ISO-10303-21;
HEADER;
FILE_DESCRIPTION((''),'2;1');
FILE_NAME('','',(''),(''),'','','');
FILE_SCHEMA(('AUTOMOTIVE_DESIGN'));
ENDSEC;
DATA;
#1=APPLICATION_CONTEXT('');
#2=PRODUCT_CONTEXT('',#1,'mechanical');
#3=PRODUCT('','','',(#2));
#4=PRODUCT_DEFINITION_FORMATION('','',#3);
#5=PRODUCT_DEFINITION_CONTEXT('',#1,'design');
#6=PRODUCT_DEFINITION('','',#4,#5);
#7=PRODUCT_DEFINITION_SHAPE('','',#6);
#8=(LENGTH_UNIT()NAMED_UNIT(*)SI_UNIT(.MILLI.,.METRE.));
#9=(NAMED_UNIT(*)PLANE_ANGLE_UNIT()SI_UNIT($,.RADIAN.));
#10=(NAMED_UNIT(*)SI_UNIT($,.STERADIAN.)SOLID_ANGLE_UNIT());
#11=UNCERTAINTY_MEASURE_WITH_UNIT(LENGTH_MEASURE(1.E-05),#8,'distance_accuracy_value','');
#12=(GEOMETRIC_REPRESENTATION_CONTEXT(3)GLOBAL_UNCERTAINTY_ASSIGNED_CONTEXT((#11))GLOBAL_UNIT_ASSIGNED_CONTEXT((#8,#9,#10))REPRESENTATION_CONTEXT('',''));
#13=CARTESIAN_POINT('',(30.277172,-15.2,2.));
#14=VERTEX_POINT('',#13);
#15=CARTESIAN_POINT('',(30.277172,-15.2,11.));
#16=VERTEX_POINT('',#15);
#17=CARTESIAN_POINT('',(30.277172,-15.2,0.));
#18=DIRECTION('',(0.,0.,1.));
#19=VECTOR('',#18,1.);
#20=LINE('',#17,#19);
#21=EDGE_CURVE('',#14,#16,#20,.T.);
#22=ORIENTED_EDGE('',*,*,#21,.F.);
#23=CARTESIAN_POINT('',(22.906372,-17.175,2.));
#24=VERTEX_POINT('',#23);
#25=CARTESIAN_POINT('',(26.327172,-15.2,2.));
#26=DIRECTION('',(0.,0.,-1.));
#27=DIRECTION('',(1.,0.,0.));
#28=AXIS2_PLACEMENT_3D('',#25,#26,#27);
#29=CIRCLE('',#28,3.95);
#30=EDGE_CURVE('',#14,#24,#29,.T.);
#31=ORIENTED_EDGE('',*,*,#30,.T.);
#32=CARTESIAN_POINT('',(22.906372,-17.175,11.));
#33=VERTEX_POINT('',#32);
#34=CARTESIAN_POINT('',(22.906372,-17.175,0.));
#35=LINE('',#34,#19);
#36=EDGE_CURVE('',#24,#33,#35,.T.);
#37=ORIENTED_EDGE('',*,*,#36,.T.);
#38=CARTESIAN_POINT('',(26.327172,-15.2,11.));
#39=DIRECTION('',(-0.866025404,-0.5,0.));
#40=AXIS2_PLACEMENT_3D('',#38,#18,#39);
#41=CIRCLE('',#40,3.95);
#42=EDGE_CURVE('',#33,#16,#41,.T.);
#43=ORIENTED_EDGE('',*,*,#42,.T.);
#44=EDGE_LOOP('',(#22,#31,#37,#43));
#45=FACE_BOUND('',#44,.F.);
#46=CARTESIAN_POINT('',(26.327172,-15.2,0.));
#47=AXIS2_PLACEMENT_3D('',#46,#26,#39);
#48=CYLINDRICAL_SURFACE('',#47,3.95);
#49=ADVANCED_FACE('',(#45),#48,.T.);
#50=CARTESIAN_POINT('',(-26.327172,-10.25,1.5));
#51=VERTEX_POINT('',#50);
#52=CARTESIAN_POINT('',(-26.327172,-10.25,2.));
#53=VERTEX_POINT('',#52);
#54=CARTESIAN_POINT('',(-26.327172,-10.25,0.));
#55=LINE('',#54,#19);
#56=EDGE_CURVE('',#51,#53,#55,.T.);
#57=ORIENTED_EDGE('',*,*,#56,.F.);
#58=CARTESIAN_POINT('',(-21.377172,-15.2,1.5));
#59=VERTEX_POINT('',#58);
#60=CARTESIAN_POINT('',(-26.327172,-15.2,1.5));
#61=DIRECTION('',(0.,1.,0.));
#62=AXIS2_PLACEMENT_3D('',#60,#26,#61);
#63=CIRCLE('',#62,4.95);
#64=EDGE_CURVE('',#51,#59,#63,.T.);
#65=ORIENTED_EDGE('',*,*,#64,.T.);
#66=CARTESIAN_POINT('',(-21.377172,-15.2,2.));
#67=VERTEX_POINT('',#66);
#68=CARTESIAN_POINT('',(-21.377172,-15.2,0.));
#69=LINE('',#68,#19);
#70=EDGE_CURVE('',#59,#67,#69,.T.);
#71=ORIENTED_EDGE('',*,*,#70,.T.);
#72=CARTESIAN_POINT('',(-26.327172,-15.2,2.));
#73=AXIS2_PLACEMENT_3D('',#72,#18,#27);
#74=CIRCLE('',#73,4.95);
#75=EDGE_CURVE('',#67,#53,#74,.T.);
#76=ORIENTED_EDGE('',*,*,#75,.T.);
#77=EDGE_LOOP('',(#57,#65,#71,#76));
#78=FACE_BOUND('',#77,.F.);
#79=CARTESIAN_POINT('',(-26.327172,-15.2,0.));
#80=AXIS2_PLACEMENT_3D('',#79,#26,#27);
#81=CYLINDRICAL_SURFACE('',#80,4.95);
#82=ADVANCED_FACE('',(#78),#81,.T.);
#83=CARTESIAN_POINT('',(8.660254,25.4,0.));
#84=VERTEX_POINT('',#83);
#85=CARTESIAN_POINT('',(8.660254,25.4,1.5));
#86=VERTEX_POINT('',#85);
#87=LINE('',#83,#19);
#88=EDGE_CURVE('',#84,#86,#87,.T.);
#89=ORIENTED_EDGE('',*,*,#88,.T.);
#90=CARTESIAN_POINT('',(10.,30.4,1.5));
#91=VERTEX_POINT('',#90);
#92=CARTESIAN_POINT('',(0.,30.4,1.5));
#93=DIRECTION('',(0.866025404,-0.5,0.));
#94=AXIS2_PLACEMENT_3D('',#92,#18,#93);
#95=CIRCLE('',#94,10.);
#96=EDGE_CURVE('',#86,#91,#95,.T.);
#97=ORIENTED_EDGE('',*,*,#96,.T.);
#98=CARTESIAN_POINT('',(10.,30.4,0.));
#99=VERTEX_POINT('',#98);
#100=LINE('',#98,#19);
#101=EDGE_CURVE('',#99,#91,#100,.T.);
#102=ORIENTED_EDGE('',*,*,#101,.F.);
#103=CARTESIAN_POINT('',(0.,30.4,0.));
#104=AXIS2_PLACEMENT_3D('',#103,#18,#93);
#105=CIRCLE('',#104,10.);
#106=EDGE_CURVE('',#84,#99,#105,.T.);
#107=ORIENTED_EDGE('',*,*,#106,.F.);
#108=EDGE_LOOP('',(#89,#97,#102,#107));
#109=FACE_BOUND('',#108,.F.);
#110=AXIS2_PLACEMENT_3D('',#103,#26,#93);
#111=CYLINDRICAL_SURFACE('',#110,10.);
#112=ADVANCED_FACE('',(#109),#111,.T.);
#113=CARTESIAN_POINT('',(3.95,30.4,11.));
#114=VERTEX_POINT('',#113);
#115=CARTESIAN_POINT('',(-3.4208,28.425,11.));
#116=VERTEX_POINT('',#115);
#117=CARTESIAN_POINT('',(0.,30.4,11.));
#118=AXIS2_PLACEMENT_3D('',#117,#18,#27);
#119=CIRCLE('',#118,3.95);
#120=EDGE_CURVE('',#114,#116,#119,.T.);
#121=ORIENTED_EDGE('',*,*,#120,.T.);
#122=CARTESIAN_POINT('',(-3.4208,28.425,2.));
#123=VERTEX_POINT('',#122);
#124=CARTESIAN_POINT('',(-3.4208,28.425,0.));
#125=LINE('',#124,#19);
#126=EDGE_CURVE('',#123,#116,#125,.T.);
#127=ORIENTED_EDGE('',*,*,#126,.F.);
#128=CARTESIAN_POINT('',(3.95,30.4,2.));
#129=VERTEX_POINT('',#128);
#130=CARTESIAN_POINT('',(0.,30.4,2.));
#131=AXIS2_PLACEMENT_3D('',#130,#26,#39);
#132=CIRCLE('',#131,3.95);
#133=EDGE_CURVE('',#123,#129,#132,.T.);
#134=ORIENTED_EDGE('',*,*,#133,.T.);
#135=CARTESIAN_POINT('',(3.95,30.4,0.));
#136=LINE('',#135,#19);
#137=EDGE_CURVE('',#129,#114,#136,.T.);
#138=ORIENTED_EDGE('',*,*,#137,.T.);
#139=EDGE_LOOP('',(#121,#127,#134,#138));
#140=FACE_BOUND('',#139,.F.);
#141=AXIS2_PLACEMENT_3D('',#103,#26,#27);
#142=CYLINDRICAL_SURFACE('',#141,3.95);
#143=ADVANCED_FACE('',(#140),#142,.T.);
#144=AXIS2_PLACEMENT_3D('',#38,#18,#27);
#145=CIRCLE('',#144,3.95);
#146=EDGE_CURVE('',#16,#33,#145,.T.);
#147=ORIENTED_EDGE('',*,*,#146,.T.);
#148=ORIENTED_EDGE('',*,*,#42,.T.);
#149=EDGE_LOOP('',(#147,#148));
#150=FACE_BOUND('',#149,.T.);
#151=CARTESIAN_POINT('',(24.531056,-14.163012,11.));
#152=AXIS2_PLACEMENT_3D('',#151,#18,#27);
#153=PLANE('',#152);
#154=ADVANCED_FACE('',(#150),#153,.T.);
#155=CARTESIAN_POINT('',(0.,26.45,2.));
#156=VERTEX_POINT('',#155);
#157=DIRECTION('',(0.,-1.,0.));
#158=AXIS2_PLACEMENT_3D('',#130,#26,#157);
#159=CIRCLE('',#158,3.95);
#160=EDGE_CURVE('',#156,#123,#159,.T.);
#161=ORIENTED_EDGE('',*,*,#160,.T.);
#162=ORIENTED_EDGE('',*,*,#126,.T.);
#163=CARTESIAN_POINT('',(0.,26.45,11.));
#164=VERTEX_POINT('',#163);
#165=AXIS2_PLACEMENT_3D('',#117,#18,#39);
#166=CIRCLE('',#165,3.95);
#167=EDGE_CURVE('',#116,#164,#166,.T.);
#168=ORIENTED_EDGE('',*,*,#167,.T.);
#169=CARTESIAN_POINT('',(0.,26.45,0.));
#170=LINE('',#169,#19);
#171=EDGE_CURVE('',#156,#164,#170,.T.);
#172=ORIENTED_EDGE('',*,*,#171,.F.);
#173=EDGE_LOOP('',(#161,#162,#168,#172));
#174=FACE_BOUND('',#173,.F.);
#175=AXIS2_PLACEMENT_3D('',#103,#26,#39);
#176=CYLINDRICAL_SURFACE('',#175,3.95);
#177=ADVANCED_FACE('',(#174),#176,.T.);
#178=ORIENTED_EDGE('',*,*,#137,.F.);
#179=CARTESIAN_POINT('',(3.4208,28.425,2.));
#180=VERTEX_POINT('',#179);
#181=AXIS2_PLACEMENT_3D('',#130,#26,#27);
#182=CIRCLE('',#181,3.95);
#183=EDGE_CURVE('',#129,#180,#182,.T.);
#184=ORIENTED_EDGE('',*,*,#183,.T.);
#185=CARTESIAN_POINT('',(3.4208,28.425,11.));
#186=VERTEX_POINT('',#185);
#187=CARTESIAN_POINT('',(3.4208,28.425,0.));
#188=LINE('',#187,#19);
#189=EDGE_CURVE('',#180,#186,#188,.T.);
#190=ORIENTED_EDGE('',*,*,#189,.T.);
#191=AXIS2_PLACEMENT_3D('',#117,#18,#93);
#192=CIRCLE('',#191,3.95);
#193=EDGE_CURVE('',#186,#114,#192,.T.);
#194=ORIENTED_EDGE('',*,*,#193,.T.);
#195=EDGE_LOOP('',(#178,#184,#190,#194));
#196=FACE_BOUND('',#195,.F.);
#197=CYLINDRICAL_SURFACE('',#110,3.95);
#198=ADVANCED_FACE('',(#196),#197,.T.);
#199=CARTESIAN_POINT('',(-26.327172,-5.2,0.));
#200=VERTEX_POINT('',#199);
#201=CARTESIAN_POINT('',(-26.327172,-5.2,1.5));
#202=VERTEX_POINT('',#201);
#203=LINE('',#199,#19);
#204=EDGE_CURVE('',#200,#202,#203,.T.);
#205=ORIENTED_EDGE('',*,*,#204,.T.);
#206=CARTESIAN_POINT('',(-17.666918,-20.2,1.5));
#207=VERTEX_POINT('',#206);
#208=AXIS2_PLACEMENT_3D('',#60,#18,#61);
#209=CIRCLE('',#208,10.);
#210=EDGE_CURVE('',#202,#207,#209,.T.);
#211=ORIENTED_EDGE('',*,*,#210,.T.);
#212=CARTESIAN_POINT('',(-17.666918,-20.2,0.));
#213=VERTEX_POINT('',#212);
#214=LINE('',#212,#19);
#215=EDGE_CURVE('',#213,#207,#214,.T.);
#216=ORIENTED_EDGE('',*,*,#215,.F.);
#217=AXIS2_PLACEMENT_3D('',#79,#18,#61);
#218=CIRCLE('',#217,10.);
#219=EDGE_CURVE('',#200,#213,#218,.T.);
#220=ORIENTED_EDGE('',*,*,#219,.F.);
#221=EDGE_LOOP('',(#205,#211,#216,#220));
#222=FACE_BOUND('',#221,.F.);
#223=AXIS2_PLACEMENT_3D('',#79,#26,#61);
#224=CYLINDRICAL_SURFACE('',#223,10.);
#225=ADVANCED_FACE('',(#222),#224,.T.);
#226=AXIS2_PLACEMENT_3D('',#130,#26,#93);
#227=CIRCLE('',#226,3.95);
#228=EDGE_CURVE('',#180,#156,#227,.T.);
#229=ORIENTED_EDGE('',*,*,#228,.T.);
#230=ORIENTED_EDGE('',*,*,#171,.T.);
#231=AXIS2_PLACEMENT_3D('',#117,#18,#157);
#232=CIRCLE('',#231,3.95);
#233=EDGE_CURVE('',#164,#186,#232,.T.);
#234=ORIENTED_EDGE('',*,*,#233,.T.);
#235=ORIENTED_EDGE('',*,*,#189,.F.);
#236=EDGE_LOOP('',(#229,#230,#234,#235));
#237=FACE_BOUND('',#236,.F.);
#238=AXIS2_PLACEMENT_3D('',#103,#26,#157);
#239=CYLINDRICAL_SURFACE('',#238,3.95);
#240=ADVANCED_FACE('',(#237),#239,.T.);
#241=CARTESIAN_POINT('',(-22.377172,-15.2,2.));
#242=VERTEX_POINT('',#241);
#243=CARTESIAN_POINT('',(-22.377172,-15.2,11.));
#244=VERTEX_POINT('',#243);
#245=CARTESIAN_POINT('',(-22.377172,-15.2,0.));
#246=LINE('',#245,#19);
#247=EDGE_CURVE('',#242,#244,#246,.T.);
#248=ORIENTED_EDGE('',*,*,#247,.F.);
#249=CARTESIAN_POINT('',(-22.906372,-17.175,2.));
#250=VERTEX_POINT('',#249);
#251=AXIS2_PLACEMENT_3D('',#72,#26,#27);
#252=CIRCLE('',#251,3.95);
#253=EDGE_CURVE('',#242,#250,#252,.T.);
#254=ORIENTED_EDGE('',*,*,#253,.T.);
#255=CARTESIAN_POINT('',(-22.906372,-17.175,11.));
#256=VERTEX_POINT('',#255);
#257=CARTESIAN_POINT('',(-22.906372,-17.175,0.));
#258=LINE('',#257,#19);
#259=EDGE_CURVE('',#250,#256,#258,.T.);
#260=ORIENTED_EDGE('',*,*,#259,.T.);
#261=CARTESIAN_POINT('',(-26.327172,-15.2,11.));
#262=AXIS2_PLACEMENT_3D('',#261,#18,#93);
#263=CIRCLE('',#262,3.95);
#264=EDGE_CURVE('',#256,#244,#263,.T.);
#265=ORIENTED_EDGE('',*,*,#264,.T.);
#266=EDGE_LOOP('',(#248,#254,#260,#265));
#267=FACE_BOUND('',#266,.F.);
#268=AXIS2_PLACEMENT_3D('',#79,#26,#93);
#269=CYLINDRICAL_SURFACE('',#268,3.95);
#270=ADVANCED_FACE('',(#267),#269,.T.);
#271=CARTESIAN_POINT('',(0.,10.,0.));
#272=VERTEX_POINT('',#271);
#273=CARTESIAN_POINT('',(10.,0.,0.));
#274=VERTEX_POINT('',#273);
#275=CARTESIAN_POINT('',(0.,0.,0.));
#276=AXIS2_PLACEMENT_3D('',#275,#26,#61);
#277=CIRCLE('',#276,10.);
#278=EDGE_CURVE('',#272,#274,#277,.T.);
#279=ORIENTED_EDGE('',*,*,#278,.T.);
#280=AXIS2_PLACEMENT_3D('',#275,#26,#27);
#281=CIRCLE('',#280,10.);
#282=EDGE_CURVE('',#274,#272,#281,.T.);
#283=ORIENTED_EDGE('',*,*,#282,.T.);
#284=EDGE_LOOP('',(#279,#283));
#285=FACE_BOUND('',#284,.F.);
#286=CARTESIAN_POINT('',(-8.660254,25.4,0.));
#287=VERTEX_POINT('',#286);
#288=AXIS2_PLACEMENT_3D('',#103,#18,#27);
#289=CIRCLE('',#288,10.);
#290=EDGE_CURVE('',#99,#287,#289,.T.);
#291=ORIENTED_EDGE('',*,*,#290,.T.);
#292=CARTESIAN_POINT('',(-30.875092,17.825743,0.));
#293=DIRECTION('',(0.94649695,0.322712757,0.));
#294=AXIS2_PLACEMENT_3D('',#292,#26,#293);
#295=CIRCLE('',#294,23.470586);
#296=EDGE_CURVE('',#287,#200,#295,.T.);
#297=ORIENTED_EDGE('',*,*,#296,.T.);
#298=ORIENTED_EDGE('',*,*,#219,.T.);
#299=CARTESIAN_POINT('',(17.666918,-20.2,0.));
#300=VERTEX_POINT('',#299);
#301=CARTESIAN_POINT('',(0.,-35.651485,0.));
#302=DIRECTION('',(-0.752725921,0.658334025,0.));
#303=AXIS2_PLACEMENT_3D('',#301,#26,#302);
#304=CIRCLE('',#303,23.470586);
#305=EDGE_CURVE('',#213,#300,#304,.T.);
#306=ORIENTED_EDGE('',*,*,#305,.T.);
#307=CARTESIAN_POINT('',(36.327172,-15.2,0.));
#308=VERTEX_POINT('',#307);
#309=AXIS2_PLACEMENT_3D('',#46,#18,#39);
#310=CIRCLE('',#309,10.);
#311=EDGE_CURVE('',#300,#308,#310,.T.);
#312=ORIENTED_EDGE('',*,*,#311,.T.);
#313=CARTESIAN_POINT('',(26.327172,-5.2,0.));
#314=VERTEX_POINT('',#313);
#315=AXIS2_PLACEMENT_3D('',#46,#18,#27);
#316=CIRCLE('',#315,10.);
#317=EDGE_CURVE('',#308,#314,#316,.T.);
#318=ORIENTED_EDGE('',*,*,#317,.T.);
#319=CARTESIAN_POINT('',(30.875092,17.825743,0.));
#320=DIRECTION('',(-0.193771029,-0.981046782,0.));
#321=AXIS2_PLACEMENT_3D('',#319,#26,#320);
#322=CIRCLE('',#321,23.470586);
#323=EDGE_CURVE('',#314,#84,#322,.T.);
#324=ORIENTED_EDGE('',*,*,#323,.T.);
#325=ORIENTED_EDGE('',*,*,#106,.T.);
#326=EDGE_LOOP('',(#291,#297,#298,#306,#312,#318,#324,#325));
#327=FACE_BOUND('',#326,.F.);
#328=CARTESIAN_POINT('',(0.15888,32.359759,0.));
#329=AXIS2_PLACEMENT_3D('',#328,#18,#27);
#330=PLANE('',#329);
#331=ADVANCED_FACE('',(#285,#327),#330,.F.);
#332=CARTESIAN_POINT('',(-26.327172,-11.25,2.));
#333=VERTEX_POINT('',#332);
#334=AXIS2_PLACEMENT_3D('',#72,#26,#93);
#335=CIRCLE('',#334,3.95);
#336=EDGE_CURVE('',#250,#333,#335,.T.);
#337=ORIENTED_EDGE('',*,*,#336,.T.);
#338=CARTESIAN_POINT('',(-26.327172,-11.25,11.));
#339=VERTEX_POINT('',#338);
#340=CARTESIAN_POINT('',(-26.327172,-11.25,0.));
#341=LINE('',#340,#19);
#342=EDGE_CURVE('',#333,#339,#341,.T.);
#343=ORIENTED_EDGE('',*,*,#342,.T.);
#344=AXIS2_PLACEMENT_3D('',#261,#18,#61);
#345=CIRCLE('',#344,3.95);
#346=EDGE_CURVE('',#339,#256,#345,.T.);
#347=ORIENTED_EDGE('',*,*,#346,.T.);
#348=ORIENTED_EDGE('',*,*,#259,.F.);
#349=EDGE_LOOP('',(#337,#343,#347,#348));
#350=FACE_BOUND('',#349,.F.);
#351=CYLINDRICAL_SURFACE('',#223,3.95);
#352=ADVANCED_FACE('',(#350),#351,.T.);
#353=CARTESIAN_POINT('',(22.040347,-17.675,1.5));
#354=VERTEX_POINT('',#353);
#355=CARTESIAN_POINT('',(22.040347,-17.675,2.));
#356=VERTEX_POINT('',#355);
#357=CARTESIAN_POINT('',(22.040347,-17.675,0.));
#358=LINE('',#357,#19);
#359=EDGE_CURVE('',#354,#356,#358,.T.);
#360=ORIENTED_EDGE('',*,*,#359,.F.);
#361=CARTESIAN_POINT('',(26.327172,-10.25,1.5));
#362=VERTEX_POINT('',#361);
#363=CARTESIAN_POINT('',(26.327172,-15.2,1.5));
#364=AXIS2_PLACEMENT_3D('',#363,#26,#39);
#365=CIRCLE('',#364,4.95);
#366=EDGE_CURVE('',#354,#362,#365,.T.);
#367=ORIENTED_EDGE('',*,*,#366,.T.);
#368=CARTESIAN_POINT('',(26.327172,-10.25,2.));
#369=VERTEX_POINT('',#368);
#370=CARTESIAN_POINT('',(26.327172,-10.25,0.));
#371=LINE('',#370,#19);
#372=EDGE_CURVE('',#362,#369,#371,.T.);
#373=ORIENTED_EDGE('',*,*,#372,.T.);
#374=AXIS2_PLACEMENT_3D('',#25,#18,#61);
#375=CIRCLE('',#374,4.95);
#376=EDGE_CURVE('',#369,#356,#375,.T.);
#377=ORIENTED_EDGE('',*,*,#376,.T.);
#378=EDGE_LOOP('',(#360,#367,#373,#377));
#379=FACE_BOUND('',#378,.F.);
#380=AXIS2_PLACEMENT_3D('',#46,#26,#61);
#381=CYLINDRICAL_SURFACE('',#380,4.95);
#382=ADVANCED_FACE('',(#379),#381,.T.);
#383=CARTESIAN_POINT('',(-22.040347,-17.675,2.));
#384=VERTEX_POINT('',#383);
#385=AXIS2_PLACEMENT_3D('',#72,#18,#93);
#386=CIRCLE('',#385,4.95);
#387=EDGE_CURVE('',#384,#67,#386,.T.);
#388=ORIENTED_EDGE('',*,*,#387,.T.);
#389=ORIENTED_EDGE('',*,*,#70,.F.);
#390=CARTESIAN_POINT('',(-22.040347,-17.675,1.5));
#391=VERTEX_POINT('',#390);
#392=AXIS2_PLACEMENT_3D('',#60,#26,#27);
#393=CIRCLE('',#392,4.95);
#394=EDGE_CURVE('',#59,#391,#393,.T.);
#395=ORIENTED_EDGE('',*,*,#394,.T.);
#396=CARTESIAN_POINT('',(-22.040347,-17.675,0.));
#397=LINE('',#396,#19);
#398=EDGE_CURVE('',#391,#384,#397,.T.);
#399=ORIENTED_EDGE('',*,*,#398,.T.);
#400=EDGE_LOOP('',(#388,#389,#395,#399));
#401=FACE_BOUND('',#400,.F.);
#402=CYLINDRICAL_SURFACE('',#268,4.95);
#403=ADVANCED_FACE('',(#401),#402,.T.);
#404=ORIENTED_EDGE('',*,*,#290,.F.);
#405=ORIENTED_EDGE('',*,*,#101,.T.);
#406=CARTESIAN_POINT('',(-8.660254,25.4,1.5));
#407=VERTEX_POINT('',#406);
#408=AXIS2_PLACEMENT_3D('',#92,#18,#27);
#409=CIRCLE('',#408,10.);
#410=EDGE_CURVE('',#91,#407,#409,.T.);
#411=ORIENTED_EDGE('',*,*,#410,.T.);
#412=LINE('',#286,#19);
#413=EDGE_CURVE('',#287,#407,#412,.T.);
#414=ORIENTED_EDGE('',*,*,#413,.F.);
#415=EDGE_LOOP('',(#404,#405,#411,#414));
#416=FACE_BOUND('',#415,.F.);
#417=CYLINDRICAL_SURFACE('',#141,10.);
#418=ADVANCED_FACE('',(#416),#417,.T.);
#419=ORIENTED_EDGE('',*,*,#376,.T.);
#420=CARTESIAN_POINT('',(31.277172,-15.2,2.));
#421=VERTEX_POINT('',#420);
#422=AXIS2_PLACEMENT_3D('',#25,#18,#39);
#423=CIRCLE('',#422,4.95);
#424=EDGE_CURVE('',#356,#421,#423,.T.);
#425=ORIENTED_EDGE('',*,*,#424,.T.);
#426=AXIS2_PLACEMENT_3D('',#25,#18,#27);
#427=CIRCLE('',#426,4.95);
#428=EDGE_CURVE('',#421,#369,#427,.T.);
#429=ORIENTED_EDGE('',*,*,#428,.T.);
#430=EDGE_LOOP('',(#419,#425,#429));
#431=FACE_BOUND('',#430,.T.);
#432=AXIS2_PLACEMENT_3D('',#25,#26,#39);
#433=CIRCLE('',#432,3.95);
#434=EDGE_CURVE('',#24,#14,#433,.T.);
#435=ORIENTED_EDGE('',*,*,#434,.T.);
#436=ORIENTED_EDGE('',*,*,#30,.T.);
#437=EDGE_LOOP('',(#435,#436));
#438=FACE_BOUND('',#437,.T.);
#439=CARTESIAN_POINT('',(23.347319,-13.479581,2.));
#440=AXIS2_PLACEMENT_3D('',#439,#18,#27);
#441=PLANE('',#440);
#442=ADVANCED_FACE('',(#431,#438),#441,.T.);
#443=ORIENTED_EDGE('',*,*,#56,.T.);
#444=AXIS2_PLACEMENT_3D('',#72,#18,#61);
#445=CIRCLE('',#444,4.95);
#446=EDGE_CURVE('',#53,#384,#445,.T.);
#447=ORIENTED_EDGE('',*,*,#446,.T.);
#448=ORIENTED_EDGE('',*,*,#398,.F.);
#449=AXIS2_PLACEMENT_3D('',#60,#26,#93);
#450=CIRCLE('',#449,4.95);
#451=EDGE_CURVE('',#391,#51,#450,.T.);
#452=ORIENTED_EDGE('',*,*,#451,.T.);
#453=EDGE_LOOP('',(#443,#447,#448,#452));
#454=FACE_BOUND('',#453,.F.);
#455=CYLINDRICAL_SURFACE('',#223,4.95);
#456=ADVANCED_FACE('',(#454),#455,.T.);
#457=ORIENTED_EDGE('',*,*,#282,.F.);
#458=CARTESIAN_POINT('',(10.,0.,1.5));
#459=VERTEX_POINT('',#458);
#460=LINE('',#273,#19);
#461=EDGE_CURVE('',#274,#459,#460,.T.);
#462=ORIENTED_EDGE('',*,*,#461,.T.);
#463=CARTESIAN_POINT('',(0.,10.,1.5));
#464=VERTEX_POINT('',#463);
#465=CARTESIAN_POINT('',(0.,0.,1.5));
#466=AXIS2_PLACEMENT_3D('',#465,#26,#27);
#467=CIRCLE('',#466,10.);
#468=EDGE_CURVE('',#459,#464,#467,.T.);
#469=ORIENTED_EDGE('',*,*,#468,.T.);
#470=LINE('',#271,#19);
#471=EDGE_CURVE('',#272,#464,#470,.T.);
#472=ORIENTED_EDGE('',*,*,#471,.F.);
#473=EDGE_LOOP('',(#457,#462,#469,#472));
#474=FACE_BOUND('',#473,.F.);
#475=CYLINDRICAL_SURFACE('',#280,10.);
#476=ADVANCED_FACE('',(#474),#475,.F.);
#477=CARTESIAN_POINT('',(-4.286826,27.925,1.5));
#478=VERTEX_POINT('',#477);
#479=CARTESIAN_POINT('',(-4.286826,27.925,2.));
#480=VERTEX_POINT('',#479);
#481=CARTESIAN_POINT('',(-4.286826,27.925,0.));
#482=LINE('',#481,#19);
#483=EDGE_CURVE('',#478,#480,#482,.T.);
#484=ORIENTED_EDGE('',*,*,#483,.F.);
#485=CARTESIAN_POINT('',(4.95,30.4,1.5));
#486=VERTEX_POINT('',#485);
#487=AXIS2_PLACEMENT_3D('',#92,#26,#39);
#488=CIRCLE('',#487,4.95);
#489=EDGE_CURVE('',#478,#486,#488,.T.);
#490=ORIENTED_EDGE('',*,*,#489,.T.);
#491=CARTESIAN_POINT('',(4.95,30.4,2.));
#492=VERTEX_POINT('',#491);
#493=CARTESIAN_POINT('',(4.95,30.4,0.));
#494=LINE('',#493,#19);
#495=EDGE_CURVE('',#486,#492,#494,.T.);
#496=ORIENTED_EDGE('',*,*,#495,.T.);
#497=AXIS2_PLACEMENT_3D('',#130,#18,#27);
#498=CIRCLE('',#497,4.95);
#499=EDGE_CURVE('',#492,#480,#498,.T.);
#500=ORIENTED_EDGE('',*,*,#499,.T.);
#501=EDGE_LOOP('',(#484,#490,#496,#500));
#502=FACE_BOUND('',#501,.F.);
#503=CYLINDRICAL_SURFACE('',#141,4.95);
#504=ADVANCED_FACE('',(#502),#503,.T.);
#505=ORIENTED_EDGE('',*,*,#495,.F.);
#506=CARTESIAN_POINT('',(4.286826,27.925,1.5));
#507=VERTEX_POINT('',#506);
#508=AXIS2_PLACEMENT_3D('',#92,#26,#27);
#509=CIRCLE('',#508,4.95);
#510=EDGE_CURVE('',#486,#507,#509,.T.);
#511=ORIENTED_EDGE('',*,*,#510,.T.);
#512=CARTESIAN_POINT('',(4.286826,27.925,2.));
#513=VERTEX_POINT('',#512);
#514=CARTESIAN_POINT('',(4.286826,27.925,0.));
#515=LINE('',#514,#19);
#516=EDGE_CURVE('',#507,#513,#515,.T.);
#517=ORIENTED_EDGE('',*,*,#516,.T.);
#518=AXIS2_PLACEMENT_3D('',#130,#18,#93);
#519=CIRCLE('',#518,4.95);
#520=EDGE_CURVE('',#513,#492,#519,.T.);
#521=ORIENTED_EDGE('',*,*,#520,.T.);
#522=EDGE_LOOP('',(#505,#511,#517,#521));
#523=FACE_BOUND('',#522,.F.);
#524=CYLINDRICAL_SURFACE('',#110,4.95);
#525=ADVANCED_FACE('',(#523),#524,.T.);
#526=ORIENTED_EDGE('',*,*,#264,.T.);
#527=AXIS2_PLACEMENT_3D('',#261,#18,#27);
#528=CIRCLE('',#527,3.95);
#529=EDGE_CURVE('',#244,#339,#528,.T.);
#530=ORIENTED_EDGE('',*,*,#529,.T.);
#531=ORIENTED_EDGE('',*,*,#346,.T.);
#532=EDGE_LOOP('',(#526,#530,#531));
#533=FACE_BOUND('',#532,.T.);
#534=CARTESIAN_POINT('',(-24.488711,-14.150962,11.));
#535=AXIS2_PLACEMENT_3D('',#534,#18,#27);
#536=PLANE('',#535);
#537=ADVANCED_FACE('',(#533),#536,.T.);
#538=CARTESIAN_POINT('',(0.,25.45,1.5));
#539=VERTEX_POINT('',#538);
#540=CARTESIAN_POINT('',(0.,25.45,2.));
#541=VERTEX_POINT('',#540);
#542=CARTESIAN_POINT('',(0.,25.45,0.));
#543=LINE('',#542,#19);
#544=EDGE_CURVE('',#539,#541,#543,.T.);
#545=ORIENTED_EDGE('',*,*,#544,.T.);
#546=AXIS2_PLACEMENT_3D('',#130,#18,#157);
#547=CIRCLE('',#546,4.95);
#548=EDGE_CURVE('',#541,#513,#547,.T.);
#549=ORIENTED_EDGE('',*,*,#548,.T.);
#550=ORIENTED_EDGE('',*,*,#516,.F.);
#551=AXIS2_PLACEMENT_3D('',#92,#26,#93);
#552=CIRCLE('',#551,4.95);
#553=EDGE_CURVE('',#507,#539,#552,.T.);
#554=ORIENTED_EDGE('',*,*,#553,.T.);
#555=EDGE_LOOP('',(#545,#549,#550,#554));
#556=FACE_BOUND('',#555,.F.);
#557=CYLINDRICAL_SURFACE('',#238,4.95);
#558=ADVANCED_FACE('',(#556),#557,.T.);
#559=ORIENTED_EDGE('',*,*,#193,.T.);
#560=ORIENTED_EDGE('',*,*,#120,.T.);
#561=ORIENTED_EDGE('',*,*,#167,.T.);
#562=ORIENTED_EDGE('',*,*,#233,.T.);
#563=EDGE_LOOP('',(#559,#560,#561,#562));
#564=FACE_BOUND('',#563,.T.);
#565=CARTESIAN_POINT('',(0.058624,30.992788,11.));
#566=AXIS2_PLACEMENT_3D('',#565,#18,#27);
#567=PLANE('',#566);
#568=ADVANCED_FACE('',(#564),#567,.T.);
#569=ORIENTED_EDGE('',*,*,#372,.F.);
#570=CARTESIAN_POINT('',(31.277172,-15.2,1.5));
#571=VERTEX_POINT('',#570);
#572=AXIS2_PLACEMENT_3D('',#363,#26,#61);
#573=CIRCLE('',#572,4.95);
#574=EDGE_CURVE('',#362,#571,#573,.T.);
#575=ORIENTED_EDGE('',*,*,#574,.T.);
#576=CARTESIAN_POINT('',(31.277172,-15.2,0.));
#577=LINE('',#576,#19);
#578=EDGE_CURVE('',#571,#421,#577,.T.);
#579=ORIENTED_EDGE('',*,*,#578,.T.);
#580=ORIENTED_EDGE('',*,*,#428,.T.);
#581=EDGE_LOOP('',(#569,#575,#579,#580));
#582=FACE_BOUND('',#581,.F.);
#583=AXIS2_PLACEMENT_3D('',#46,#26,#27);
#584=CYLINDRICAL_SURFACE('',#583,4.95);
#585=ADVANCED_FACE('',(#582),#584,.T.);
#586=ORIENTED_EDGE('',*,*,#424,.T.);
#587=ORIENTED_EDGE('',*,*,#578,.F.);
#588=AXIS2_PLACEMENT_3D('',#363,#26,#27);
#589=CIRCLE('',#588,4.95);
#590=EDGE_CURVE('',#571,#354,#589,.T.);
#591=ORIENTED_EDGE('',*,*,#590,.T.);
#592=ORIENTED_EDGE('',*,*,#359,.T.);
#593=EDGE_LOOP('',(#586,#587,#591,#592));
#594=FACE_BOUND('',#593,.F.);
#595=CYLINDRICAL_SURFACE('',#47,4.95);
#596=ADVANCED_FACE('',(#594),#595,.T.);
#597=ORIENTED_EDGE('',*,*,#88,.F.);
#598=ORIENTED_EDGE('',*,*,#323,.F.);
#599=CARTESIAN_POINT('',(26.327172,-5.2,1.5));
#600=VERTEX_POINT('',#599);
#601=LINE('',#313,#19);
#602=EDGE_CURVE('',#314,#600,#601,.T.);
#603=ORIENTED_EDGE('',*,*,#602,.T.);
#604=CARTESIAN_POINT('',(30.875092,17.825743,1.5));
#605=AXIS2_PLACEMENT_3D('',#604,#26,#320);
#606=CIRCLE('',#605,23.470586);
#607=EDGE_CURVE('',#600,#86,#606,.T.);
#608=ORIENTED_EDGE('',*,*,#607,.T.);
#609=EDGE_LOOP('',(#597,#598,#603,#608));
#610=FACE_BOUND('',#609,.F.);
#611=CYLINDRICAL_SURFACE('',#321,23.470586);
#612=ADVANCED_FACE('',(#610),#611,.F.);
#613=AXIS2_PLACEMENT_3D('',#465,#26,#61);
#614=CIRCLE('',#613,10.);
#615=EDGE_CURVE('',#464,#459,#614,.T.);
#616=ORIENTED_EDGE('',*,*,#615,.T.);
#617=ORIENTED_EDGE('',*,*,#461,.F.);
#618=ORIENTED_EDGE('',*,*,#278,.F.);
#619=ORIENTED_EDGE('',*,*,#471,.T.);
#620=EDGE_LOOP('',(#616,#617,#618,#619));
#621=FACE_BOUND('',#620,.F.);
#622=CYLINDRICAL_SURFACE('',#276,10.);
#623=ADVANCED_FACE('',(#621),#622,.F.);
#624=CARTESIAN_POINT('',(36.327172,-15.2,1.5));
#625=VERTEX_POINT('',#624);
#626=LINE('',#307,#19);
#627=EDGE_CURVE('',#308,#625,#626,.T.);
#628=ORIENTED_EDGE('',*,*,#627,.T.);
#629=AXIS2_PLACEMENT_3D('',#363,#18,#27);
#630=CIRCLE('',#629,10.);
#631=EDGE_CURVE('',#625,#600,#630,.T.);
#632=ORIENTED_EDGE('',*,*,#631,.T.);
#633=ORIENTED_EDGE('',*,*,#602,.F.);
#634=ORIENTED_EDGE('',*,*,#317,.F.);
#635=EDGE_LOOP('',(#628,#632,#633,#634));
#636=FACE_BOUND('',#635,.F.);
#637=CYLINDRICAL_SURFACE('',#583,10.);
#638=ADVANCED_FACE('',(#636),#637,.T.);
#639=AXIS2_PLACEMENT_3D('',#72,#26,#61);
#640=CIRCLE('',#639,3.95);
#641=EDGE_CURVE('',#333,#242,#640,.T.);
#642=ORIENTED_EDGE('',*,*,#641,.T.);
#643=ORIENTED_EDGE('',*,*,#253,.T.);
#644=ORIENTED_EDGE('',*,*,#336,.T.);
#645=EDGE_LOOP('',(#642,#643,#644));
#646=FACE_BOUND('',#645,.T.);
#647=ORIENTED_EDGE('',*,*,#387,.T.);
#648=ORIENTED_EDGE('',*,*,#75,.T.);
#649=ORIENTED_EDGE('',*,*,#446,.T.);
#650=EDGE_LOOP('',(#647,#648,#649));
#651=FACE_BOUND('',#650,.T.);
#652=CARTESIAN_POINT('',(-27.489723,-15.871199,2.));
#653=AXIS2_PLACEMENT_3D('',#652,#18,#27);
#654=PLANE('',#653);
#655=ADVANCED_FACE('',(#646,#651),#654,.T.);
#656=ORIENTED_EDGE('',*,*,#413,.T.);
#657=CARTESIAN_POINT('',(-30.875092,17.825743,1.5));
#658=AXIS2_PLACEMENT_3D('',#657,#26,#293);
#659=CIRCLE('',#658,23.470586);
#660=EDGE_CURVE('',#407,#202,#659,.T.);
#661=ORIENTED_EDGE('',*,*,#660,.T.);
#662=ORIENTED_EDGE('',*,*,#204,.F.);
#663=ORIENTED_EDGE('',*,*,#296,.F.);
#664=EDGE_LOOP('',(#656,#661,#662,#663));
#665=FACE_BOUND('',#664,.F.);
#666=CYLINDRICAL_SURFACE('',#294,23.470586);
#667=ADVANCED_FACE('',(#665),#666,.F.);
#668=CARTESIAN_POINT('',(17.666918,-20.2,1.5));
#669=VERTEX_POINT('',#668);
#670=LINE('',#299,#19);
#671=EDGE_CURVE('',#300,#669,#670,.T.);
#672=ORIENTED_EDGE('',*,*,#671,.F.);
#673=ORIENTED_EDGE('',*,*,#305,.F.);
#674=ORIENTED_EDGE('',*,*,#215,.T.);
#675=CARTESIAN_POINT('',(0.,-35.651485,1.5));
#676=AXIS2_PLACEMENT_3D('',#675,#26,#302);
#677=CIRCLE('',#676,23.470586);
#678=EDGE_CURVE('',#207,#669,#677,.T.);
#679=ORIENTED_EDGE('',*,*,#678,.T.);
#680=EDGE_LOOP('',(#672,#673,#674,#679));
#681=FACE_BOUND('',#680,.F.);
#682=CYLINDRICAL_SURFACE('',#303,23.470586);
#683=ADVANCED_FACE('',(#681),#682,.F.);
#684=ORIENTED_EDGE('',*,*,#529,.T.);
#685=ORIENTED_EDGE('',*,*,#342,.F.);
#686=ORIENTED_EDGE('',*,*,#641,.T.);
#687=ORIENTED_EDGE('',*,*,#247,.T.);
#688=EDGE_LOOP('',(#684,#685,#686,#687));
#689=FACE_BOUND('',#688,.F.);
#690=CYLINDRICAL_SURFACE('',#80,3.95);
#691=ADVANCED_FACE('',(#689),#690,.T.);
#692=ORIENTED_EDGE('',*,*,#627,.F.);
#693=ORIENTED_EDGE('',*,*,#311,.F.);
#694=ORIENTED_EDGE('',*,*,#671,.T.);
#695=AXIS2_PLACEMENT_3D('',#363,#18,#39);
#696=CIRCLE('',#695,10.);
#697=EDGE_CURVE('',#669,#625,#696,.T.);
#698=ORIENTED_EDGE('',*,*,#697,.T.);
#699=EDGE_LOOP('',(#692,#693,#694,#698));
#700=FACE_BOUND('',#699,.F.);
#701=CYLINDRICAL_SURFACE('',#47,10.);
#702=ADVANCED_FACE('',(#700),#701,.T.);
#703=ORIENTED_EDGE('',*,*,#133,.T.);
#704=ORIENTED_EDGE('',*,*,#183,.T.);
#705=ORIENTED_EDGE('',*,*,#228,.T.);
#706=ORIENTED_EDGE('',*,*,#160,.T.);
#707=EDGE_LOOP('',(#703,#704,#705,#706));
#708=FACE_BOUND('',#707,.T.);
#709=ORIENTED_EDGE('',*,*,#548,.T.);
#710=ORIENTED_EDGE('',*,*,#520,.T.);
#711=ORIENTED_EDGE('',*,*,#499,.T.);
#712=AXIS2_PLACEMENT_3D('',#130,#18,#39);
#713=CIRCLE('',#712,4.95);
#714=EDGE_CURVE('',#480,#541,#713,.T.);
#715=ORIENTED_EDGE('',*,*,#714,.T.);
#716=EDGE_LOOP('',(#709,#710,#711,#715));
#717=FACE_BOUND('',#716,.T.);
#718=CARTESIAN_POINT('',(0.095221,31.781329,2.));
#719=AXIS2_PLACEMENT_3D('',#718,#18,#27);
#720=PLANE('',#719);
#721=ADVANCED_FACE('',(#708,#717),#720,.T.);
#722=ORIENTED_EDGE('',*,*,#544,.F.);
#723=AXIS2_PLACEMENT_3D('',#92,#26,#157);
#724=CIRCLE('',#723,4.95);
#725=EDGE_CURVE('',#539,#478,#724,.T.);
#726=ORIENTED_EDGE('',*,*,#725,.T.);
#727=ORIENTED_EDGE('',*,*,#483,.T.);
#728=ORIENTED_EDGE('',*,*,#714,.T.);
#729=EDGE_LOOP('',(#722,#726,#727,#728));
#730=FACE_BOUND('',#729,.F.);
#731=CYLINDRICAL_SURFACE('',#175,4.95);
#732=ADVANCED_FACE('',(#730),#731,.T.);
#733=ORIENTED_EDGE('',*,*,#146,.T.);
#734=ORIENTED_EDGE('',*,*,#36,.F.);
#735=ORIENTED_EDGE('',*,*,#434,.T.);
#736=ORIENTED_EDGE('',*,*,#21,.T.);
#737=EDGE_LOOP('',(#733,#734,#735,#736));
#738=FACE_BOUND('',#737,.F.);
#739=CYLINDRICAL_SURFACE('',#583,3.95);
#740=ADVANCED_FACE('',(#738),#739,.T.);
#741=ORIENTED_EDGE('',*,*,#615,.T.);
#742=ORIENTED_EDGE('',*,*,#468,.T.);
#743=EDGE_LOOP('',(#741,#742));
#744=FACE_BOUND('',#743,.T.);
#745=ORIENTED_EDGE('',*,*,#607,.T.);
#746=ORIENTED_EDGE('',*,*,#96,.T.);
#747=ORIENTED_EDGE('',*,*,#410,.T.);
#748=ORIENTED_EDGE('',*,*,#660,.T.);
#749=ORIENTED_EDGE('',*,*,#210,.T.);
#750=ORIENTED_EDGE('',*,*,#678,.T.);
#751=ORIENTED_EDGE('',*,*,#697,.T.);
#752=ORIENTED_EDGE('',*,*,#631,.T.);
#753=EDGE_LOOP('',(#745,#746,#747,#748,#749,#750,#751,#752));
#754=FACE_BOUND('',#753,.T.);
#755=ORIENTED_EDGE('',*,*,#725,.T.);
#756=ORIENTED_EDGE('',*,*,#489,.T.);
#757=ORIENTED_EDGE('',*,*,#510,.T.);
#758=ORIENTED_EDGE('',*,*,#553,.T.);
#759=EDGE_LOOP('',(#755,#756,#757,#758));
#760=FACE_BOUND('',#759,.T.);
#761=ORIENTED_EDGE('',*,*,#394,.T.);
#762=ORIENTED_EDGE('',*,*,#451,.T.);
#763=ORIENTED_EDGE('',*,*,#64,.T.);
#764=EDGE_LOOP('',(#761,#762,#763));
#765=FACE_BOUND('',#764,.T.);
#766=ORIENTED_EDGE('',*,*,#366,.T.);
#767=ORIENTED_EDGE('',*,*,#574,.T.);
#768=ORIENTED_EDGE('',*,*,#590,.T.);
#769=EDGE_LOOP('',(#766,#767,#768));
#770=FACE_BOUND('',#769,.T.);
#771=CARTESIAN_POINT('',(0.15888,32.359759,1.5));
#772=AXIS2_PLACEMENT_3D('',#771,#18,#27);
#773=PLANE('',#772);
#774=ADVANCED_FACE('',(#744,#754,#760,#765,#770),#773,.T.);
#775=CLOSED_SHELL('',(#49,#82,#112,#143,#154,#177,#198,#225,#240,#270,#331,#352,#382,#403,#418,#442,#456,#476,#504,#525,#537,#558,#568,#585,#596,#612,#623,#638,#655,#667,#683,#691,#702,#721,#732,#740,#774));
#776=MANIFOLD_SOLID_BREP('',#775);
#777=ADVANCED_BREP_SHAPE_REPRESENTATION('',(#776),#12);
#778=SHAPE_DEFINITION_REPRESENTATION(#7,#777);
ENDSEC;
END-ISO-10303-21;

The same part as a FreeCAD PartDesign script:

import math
import FreeCAD as App
import Part
import Sketcher

doc = App.newDocument("Part")
params = doc.addObject("Spreadsheet::Sheet", "Params")
for row, (alias, value) in enumerate([
    ("sketch1_radius", "10 mm"),
    ("sketch1_radius2", "4.95 mm"),
    ("sketch1_height", "5 mm"),
    ("sketch1_height2", "5 mm"),
    ("pad1_length", "1.5 mm"),
    ("sketch2_radius", "4.95 mm"),
    ("sketch2_radius2", "3.95 mm"),
    ("pad2_length", "2 mm"),
    ("sketch3_radius", "3.95 mm"),
    ("pad3_length", "11 mm"),
], start=1):
    params.set(f"A{row}", alias)
    params.set(f"B{row}", "=" + value)
    params.setAlias(f"B{row}", alias)

body = doc.addObject("PartDesign::Body", "Body")

sketch1 = body.newObject("Sketcher::SketchObject", "Sketch")
sketch1.AttachmentSupport = (doc.getObject("XY_Plane"), [""])
sketch1.MapMode = "FlatFace"
sketch1.addGeometry(Part.ArcOfCircle(Part.Circle(App.Vector(0, 30.4, 0), App.Vector(0, 0, 1), 10), math.radians(0), math.radians(210)), False)
sketch1.addGeometry(Part.ArcOfCircle(Part.Circle(App.Vector(-30.875092, 17.825743, 0), App.Vector(0, 0, 1), 23.470586), math.radians(-78.827061), math.radians(18.827061)), False)
sketch1.addGeometry(Part.ArcOfCircle(Part.Circle(App.Vector(-26.327172, -15.2, 0), App.Vector(0, 0, 1), 10), math.radians(90), math.radians(330)), False)
sketch1.addGeometry(Part.ArcOfCircle(Part.Circle(App.Vector(0, -35.651485, 0), App.Vector(0, 0, 1), 23.470586), math.radians(41.172939), math.radians(138.827061)), False)
sketch1.addGeometry(Part.ArcOfCircle(Part.Circle(App.Vector(26.327172, -15.2, 0), App.Vector(0, 0, 1), 10), math.radians(-150), math.radians(0)), False)
sketch1.addGeometry(Part.ArcOfCircle(Part.Circle(App.Vector(26.327172, -15.2, 0), App.Vector(0, 0, 1), 10), math.radians(0), math.radians(90)), False)
sketch1.addGeometry(Part.ArcOfCircle(Part.Circle(App.Vector(30.875092, 17.825743, 0), App.Vector(0, 0, 1), 23.470586), math.radians(161.172939), math.radians(258.827061)), False)
sketch1.addGeometry(Part.ArcOfCircle(Part.Circle(App.Vector(0, 30.4, 0), App.Vector(0, 0, 1), 10), math.radians(-30), math.radians(0)), False)
sketch1.addGeometry(Part.ArcOfCircle(Part.Circle(App.Vector(-26.327172, -15.2, 0), App.Vector(0, 0, 1), 4.95), math.radians(0), math.radians(90)), False)
sketch1.addGeometry(Part.ArcOfCircle(Part.Circle(App.Vector(-26.327172, -15.2, 0), App.Vector(0, 0, 1), 4.95), math.radians(-30), math.radians(0)), False)
sketch1.addGeometry(Part.ArcOfCircle(Part.Circle(App.Vector(-26.327172, -15.2, 0), App.Vector(0, 0, 1), 4.95), math.radians(90), math.radians(330)), False)
sketch1.addGeometry(Part.ArcOfCircle(Part.Circle(App.Vector(0, 0, 0), App.Vector(0, 0, 1), 10), math.radians(90), math.radians(360)), False)
sketch1.addGeometry(Part.ArcOfCircle(Part.Circle(App.Vector(0, 0, 0), App.Vector(0, 0, 1), 10), math.radians(0), math.radians(90)), False)
sketch1.addGeometry(Part.ArcOfCircle(Part.Circle(App.Vector(0, 30.4, 0), App.Vector(0, 0, 1), 4.95), math.radians(0), math.radians(210)), False)
sketch1.addGeometry(Part.ArcOfCircle(Part.Circle(App.Vector(0, 30.4, 0), App.Vector(0, 0, 1), 4.95), math.radians(-30), math.radians(0)), False)
sketch1.addGeometry(Part.ArcOfCircle(Part.Circle(App.Vector(0, 30.4, 0), App.Vector(0, 0, 1), 4.95), math.radians(-90), math.radians(-30)), False)
sketch1.addGeometry(Part.ArcOfCircle(Part.Circle(App.Vector(0, 30.4, 0), App.Vector(0, 0, 1), 4.95), math.radians(-150), math.radians(-90)), False)
sketch1.addGeometry(Part.ArcOfCircle(Part.Circle(App.Vector(26.327172, -15.2, 0), App.Vector(0, 0, 1), 4.95), math.radians(90), math.radians(210)), False)
sketch1.addGeometry(Part.ArcOfCircle(Part.Circle(App.Vector(26.327172, -15.2, 0), App.Vector(0, 0, 1), 4.95), math.radians(0), math.radians(90)), False)
sketch1.addGeometry(Part.ArcOfCircle(Part.Circle(App.Vector(26.327172, -15.2, 0), App.Vector(0, 0, 1), 4.95), math.radians(-150), math.radians(0)), False)
sketch1.addConstraint(Sketcher.Constraint("Coincident", 0, 2, 1, 2))
sketch1.addConstraint(Sketcher.Constraint("Coincident", 1, 1, 2, 1))
sketch1.addConstraint(Sketcher.Constraint("Coincident", 2, 2, 3, 2))
sketch1.addConstraint(Sketcher.Constraint("Coincident", 3, 1, 4, 1))
sketch1.addConstraint(Sketcher.Constraint("Tangent", 4, 2, 5, 1))
sketch1.addConstraint(Sketcher.Constraint("Coincident", 5, 2, 6, 2))
sketch1.addConstraint(Sketcher.Constraint("Coincident", 6, 1, 7, 1))
sketch1.addConstraint(Sketcher.Constraint("Tangent", 7, 2, 0, 1))
sketch1.addConstraint(Sketcher.Constraint("Tangent", 8, 1, 9, 2))
sketch1.addConstraint(Sketcher.Constraint("Tangent", 9, 1, 10, 2))
sketch1.addConstraint(Sketcher.Constraint("Tangent", 10, 1, 8, 2))
sketch1.addConstraint(Sketcher.Constraint("Tangent", 11, 1, 12, 2))
sketch1.addConstraint(Sketcher.Constraint("Coincident", 12, 1, 11, 2))
sketch1.addConstraint(Sketcher.Constraint("Tangent", 13, 1, 14, 2))
sketch1.addConstraint(Sketcher.Constraint("Tangent", 14, 1, 15, 2))
sketch1.addConstraint(Sketcher.Constraint("Tangent", 15, 1, 16, 2))
sketch1.addConstraint(Sketcher.Constraint("Tangent", 16, 1, 13, 2))
sketch1.addConstraint(Sketcher.Constraint("Tangent", 17, 1, 18, 2))
sketch1.addConstraint(Sketcher.Constraint("Tangent", 18, 1, 19, 2))
sketch1.addConstraint(Sketcher.Constraint("Tangent", 19, 1, 17, 2))
sketch1.addConstraint(Sketcher.Constraint("Coincident", 11, 3, -1, 1))
sketch1.addConstraint(Sketcher.Constraint("Coincident", 8, 3, 2, 3))
sketch1.addConstraint(Sketcher.Constraint("Coincident", 13, 3, 0, 3))
sketch1.addConstraint(Sketcher.Constraint("Coincident", 17, 3, 4, 3))
sketch1.addConstraint(Sketcher.Constraint("Equal", 0, 2))
sketch1.addConstraint(Sketcher.Constraint("Equal", 1, 3))
sketch1.addConstraint(Sketcher.Constraint("Equal", 2, 4))
sketch1.addConstraint(Sketcher.Constraint("Equal", 4, 5))
sketch1.addConstraint(Sketcher.Constraint("Equal", 3, 6))
sketch1.addConstraint(Sketcher.Constraint("Equal", 5, 7))
sketch1.addConstraint(Sketcher.Constraint("Equal", 7, 11))
sketch1.addConstraint(Sketcher.Constraint("Equal", 10, 13))
sketch1.addConstraint(Sketcher.Constraint("Equal", 13, 14))
sketch1.addConstraint(Sketcher.Constraint("Equal", 16, 17))
sketch1.addConstraint(Sketcher.Constraint("Symmetric", 2, 3, 4, 3, -2))
sketch1.addConstraint(Sketcher.Constraint("Symmetric", 1, 3, 6, 3, -2))
sketch1.addConstraint(Sketcher.Constraint("Symmetric", 14, 1, 16, 1, -2))
sketch1.addConstraint(Sketcher.Constraint("PointOnObject", 3, 3, -2))
sketch1.addConstraint(Sketcher.Constraint("PointOnObject", 11, 1, -2))
sketch1.addConstraint(Sketcher.Constraint("PointOnObject", 12, 1, -1))
sketch1.addConstraint(Sketcher.Constraint("PointOnObject", 15, 1, -2))
sketch1.addConstraint(Sketcher.Constraint("Horizontal", 19, 3, 4, 2))
sketch1.addConstraint(Sketcher.Constraint("Horizontal", 16, 3, 7, 2))
sketch1.addConstraint(Sketcher.Constraint("Horizontal", 4, 2, 8, 1))
sketch1.addConstraint(Sketcher.Constraint("Horizontal", 7, 2, 13, 1))
sketch1.addConstraint(Sketcher.Constraint("Horizontal", 8, 1, 18, 1))
sketch1.addConstraint(Sketcher.Constraint("Horizontal", 9, 1, 19, 1))
sketch1.addConstraint(Sketcher.Constraint("Vertical", 10, 3, 1, 1))
sketch1.addConstraint(Sketcher.Constraint("Vertical", 1, 1, 10, 1))
sketch1.addConstraint(Sketcher.Constraint("Vertical", 5, 2, 17, 1))
sketch1.addConstraint(Sketcher.Constraint("Radius", 0, 10.0))
sketch1.addConstraint(Sketcher.Constraint("Radius", 8, 4.95))
sketch1.addConstraint(Sketcher.Constraint("DistanceY", 0, 2, 0, 3, 5.0))
sketch1.addConstraint(Sketcher.Constraint("DistanceY", 2, 2, 2, 3, 5.0))
sketch1.addConstraint(Sketcher.Constraint("DistanceY", -1, 1, 0, 3, 30.4))
sketch1.addConstraint(Sketcher.Constraint("DistanceY", 2, 3, -1, 1, 15.2))
sketch1.addConstraint(Sketcher.Constraint("DistanceY", 9, 1, -1, 1, 17.675))
sketch1.addConstraint(Sketcher.Constraint("DistanceY", -1, 1, 14, 1, 27.925))
sketch1.addConstraint(Sketcher.Constraint("Radius", 1, 23.470586))
sketch1.addConstraint(Sketcher.Constraint("DistanceX", 1, 3, -1, 1, 30.875092))
sketch1.setExpression("Constraints[50]", "Params.sketch1_radius")
sketch1.setExpression("Constraints[51]", "Params.sketch1_radius2")
sketch1.setExpression("Constraints[52]", "Params.sketch1_height")
sketch1.setExpression("Constraints[53]", "Params.sketch1_height2")
pad1 = body.newObject("PartDesign::Pad", "Pad")
pad1.Profile = sketch1
pad1.setExpression("Length", "Params.pad1_length")

sketch2 = body.newObject("Sketcher::SketchObject", "Sketch001")
sketch2.AttachmentSupport = (doc.getObject("XY_Plane"), [""])
sketch2.MapMode = "FlatFace"
sketch2.addGeometry(Part.ArcOfCircle(Part.Circle(App.Vector(0, 30.4, 0), App.Vector(0, 0, 1), 4.95), math.radians(0), math.radians(210)), False)
sketch2.addGeometry(Part.ArcOfCircle(Part.Circle(App.Vector(0, 30.4, 0), App.Vector(0, 0, 1), 4.95), math.radians(-150), math.radians(-90)), False)
sketch2.addGeometry(Part.ArcOfCircle(Part.Circle(App.Vector(0, 30.4, 0), App.Vector(0, 0, 1), 4.95), math.radians(-90), math.radians(-30)), False)
sketch2.addGeometry(Part.ArcOfCircle(Part.Circle(App.Vector(0, 30.4, 0), App.Vector(0, 0, 1), 4.95), math.radians(-30), math.radians(0)), False)
sketch2.addGeometry(Part.ArcOfCircle(Part.Circle(App.Vector(0, 30.4, 0), App.Vector(0, 0, 1), 3.95), math.radians(-150), math.radians(-90)), False)
sketch2.addGeometry(Part.ArcOfCircle(Part.Circle(App.Vector(0, 30.4, 0), App.Vector(0, 0, 1), 3.95), math.radians(0), math.radians(210)), False)
sketch2.addGeometry(Part.ArcOfCircle(Part.Circle(App.Vector(0, 30.4, 0), App.Vector(0, 0, 1), 3.95), math.radians(-30), math.radians(0)), False)
sketch2.addGeometry(Part.ArcOfCircle(Part.Circle(App.Vector(0, 30.4, 0), App.Vector(0, 0, 1), 3.95), math.radians(-90), math.radians(-30)), False)
sketch2.addGeometry(Part.ArcOfCircle(Part.Circle(App.Vector(26.327172, -15.2, 0), App.Vector(0, 0, 1), 4.95), math.radians(90), math.radians(210)), False)
sketch2.addGeometry(Part.ArcOfCircle(Part.Circle(App.Vector(26.327172, -15.2, 0), App.Vector(0, 0, 1), 4.95), math.radians(-150), math.radians(0)), False)
sketch2.addGeometry(Part.ArcOfCircle(Part.Circle(App.Vector(26.327172, -15.2, 0), App.Vector(0, 0, 1), 4.95), math.radians(0), math.radians(90)), False)
sketch2.addGeometry(Part.ArcOfCircle(Part.Circle(App.Vector(26.327172, -15.2, 0), App.Vector(0, 0, 1), 3.95), math.radians(0), math.radians(210)), False)
sketch2.addGeometry(Part.ArcOfCircle(Part.Circle(App.Vector(26.327172, -15.2, 0), App.Vector(0, 0, 1), 3.95), math.radians(-150), math.radians(0)), False)
sketch2.addGeometry(Part.ArcOfCircle(Part.Circle(App.Vector(-26.327172, -15.2, 0), App.Vector(0, 0, 1), 4.95), math.radians(90), math.radians(330)), False)
sketch2.addGeometry(Part.ArcOfCircle(Part.Circle(App.Vector(-26.327172, -15.2, 0), App.Vector(0, 0, 1), 4.95), math.radians(-30), math.radians(0)), False)
sketch2.addGeometry(Part.ArcOfCircle(Part.Circle(App.Vector(-26.327172, -15.2, 0), App.Vector(0, 0, 1), 4.95), math.radians(0), math.radians(90)), False)
sketch2.addGeometry(Part.ArcOfCircle(Part.Circle(App.Vector(-26.327172, -15.2, 0), App.Vector(0, 0, 1), 3.95), math.radians(90), math.radians(330)), False)
sketch2.addGeometry(Part.ArcOfCircle(Part.Circle(App.Vector(-26.327172, -15.2, 0), App.Vector(0, 0, 1), 3.95), math.radians(0), math.radians(90)), False)
sketch2.addGeometry(Part.ArcOfCircle(Part.Circle(App.Vector(-26.327172, -15.2, 0), App.Vector(0, 0, 1), 3.95), math.radians(-30), math.radians(0)), False)
sketch2.addConstraint(Sketcher.Constraint("Tangent", 0, 2, 1, 1))
sketch2.addConstraint(Sketcher.Constraint("Tangent", 1, 2, 2, 1))
sketch2.addConstraint(Sketcher.Constraint("Tangent", 2, 2, 3, 1))
sketch2.addConstraint(Sketcher.Constraint("Tangent", 3, 2, 0, 1))
sketch2.addConstraint(Sketcher.Constraint("Tangent", 4, 1, 5, 2))
sketch2.addConstraint(Sketcher.Constraint("Tangent", 5, 1, 6, 2))
sketch2.addConstraint(Sketcher.Constraint("Tangent", 6, 1, 7, 2))
sketch2.addConstraint(Sketcher.Constraint("Tangent", 7, 1, 4, 2))
sketch2.addConstraint(Sketcher.Constraint("Tangent", 8, 2, 9, 1))
sketch2.addConstraint(Sketcher.Constraint("Tangent", 9, 2, 10, 1))
sketch2.addConstraint(Sketcher.Constraint("Tangent", 10, 2, 8, 1))
sketch2.addConstraint(Sketcher.Constraint("Tangent", 11, 1, 12, 2))
sketch2.addConstraint(Sketcher.Constraint("Coincident", 12, 1, 11, 2))
sketch2.addConstraint(Sketcher.Constraint("Tangent", 13, 2, 14, 1))
sketch2.addConstraint(Sketcher.Constraint("Tangent", 14, 2, 15, 1))
sketch2.addConstraint(Sketcher.Constraint("Tangent", 15, 2, 13, 1))
sketch2.addConstraint(Sketcher.Constraint("Tangent", 16, 1, 17, 2))
sketch2.addConstraint(Sketcher.Constraint("Tangent", 17, 1, 18, 2))
sketch2.addConstraint(Sketcher.Constraint("Tangent", 18, 1, 16, 2))
sketch2.addConstraint(Sketcher.Constraint("Coincident", 4, 3, 0, 3))
sketch2.addConstraint(Sketcher.Constraint("Coincident", 11, 3, 8, 3))
sketch2.addConstraint(Sketcher.Constraint("Coincident", 16, 3, 13, 3))
sketch2.addConstraint(Sketcher.Constraint("Equal", 0, 1))
sketch2.addConstraint(Sketcher.Constraint("Equal", 4, 5))
sketch2.addConstraint(Sketcher.Constraint("Equal", 3, 8))
sketch2.addConstraint(Sketcher.Constraint("Equal", 7, 11))
sketch2.addConstraint(Sketcher.Constraint("Equal", 10, 13))
sketch2.addConstraint(Sketcher.Constraint("Equal", 12, 16))
sketch2.addConstraint(Sketcher.Constraint("Symmetric", 8, 3, 13, 3, -2))
sketch2.addConstraint(Sketcher.Constraint("Symmetric", 0, 2, 2, 2, -2))
sketch2.addConstraint(Sketcher.Constraint("PointOnObject", 1, 2, -2))
sketch2.addConstraint(Sketcher.Constraint("PointOnObject", 7, 1, -2))
sketch2.addConstraint(Sketcher.Constraint("Horizontal", 7, 3, 3, 2))
sketch2.addConstraint(Sketcher.Constraint("Horizontal", 3, 2, 5, 1))
sketch2.addConstraint(Sketcher.Constraint("Horizontal", 4, 1, 6, 1))
sketch2.addConstraint(Sketcher.Constraint("Horizontal", 18, 3, 9, 2))
sketch2.addConstraint(Sketcher.Constraint("Horizontal", 9, 2, 11, 1))
sketch2.addConstraint(Sketcher.Constraint("Horizontal", 8, 2, 13, 2))
sketch2.addConstraint(Sketcher.Constraint("Horizontal", 11, 1, 14, 2))
sketch2.addConstraint(Sketcher.Constraint("Horizontal", 14, 2, 17, 1))
sketch2.addConstraint(Sketcher.Constraint("Horizontal", 12, 1, 18, 1))
sketch2.addConstraint(Sketcher.Constraint("Vertical", 12, 3, 10, 2))
sketch2.addConstraint(Sketcher.Constraint("Vertical", 18, 3, 15, 2))
sketch2.addConstraint(Sketcher.Constraint("Vertical", 15, 2, 16, 1))
sketch2.addConstraint(Sketcher.Constraint("Radius", 0, 4.95))
sketch2.addConstraint(Sketcher.Constraint("Radius", 4, 3.95))
sketch2.addConstraint(Sketcher.Constraint("DistanceY", -1, 1, 0, 3, 30.4))
sketch2.addConstraint(Sketcher.Constraint("DistanceY", 8, 3, -1, 1, 15.2))
sketch2.addConstraint(Sketcher.Constraint("DistanceY", 0, 2, 4, 1, 0.5))
sketch2.addConstraint(Sketcher.Constraint("DistanceY", 8, 2, 12, 1, 0.5))
sketch2.addConstraint(Sketcher.Constraint("DistanceY", -1, 1, 0, 2, 27.925))
sketch2.addConstraint(Sketcher.Constraint("DistanceY", 8, 2, -1, 1, 17.675))
sketch2.addConstraint(Sketcher.Constraint("DistanceX", -1, 1, 12, 1, 22.906372))
sketch2.setExpression("Constraints[44]", "Params.sketch2_radius")
sketch2.setExpression("Constraints[45]", "Params.sketch2_radius2")
pad2 = body.newObject("PartDesign::Pad", "Pad001")
pad2.Profile = sketch2
pad2.setExpression("Length", "Params.pad2_length")

sketch3 = body.newObject("Sketcher::SketchObject", "Sketch002")
sketch3.AttachmentSupport = (doc.getObject("XY_Plane"), [""])
sketch3.MapMode = "FlatFace"
sketch3.addGeometry(Part.ArcOfCircle(Part.Circle(App.Vector(0, 30.4, 0), App.Vector(0, 0, 1), 3.95), math.radians(-30), math.radians(0)), False)
sketch3.addGeometry(Part.ArcOfCircle(Part.Circle(App.Vector(0, 30.4, 0), App.Vector(0, 0, 1), 3.95), math.radians(0), math.radians(210)), False)
sketch3.addGeometry(Part.ArcOfCircle(Part.Circle(App.Vector(0, 30.4, 0), App.Vector(0, 0, 1), 3.95), math.radians(-150), math.radians(-90)), False)
sketch3.addGeometry(Part.ArcOfCircle(Part.Circle(App.Vector(0, 30.4, 0), App.Vector(0, 0, 1), 3.95), math.radians(-90), math.radians(-30)), False)
sketch3.addGeometry(Part.ArcOfCircle(Part.Circle(App.Vector(-26.327172, -15.2, 0), App.Vector(0, 0, 1), 3.95), math.radians(0), math.radians(90)), False)
sketch3.addGeometry(Part.ArcOfCircle(Part.Circle(App.Vector(-26.327172, -15.2, 0), App.Vector(0, 0, 1), 3.95), math.radians(90), math.radians(330)), False)
sketch3.addGeometry(Part.ArcOfCircle(Part.Circle(App.Vector(-26.327172, -15.2, 0), App.Vector(0, 0, 1), 3.95), math.radians(-30), math.radians(0)), False)
sketch3.addGeometry(Part.ArcOfCircle(Part.Circle(App.Vector(26.327172, -15.2, 0), App.Vector(0, 0, 1), 3.95), math.radians(-150), math.radians(0)), False)
sketch3.addGeometry(Part.ArcOfCircle(Part.Circle(App.Vector(26.327172, -15.2, 0), App.Vector(0, 0, 1), 3.95), math.radians(0), math.radians(210)), False)
sketch3.addConstraint(Sketcher.Constraint("Tangent", 0, 2, 1, 1))
sketch3.addConstraint(Sketcher.Constraint("Tangent", 1, 2, 2, 1))
sketch3.addConstraint(Sketcher.Constraint("Tangent", 2, 2, 3, 1))
sketch3.addConstraint(Sketcher.Constraint("Tangent", 3, 2, 0, 1))
sketch3.addConstraint(Sketcher.Constraint("Tangent", 4, 2, 5, 1))
sketch3.addConstraint(Sketcher.Constraint("Tangent", 5, 2, 6, 1))
sketch3.addConstraint(Sketcher.Constraint("Tangent", 6, 2, 4, 1))
sketch3.addConstraint(Sketcher.Constraint("Tangent", 7, 1, 8, 2))
sketch3.addConstraint(Sketcher.Constraint("Coincident", 8, 1, 7, 2))
sketch3.addConstraint(Sketcher.Constraint("Equal", 0, 1))
sketch3.addConstraint(Sketcher.Constraint("Equal", 3, 4))
sketch3.addConstraint(Sketcher.Constraint("Equal", 6, 7))
sketch3.addConstraint(Sketcher.Constraint("Symmetric", 4, 3, 7, 3, -2))
sketch3.addConstraint(Sketcher.Constraint("Symmetric", 1, 2, 3, 2, -2))
sketch3.addConstraint(Sketcher.Constraint("PointOnObject", 2, 2, -2))
sketch3.addConstraint(Sketcher.Constraint("Horizontal", 3, 3, 0, 2))
sketch3.addConstraint(Sketcher.Constraint("Horizontal", 8, 3, 6, 2))
sketch3.addConstraint(Sketcher.Constraint("Horizontal", 5, 2, 7, 1))
sketch3.addConstraint(Sketcher.Constraint("Horizontal", 6, 2, 8, 1))
sketch3.addConstraint(Sketcher.Constraint("Vertical", 6, 3, 4, 2))
sketch3.addConstraint(Sketcher.Constraint("Radius", 0, 3.95))
sketch3.addConstraint(Sketcher.Constraint("DistanceY", -1, 1, 0, 3, 30.4))
sketch3.addConstraint(Sketcher.Constraint("DistanceY", 4, 3, -1, 1, 15.2))
sketch3.addConstraint(Sketcher.Constraint("DistanceY", -1, 1, 1, 2, 28.425))
sketch3.addConstraint(Sketcher.Constraint("DistanceY", 5, 2, -1, 1, 17.175))
sketch3.addConstraint(Sketcher.Constraint("DistanceX", 5, 2, -1, 1, 22.906372))
sketch3.setExpression("Constraints[20]", "Params.sketch3_radius")
pad3 = body.newObject("PartDesign::Pad", "Pad002")
pad3.Profile = sketch3
pad3.setExpression("Length", "Params.pad3_length")

doc.recompute()
